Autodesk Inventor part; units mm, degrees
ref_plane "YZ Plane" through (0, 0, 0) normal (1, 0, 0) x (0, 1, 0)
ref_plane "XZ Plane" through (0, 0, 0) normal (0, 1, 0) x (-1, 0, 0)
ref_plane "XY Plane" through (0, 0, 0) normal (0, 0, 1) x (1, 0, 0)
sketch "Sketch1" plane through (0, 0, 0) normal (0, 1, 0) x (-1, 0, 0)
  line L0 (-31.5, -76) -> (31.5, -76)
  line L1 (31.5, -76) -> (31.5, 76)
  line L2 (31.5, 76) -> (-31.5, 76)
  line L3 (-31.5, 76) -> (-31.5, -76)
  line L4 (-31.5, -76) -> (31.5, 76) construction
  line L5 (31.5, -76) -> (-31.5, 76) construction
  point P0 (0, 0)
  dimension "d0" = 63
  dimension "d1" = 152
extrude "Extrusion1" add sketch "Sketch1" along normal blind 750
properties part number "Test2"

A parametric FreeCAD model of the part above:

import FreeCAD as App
import Part
import Sketcher

V = App.Vector
Q = App.Units.Quantity


def add_polygon(sketch, points):
    """Adds a closed chain of lines whose ends are joined by coincident constraints."""
    first, n = sketch.GeometryCount, len(points)
    for a, b in zip(points, points[1:] + points[:1]):
        sketch.addGeometry(Part.LineSegment(App.Vector(*a, 0), App.Vector(*b, 0)), False)
    for i in range(n):
        sketch.addConstraint(Sketcher.Constraint("Coincident", first + i, 2, first + (i + 1) % n, 1))

doc = App.newDocument("Part")
body = doc.addObject("PartDesign::Body", "Body")

# Sketch on XZ plane
sketch1 = body.newObject("Sketcher::SketchObject", "Sketch")
sketch1.AttachmentSupport = (doc.getObject("XZ_Plane"), [""])
sketch1.MapMode = "FlatFace"
add_polygon(sketch1, [(32, 76), (32, -76), (-32, -76), (-32, 76)])  # lines 0-3
sketch1.addConstraint(Sketcher.Constraint("Vertical", 0))
sketch1.addConstraint(Sketcher.Constraint("Horizontal", 1))
sketch1.addConstraint(Sketcher.Constraint("Vertical", 2))
sketch1.addConstraint(Sketcher.Constraint("Horizontal", 3))
sketch1.addConstraint(Sketcher.Constraint("Symmetric", 0, 2, 2, 2, -1, 1))
sketch1.addConstraint(Sketcher.Constraint("DistanceX", 1, 2, 1, 1, Q("63 mm")))
sketch1.addConstraint(Sketcher.Constraint("DistanceY", 0, 2, 0, 1, Q("152 mm")))
pad1 = body.newObject("PartDesign::Pad", "Pad")
pad1.Profile = sketch1
pad1.Length = 750
pad1.Reversed = True

doc.recompute()
